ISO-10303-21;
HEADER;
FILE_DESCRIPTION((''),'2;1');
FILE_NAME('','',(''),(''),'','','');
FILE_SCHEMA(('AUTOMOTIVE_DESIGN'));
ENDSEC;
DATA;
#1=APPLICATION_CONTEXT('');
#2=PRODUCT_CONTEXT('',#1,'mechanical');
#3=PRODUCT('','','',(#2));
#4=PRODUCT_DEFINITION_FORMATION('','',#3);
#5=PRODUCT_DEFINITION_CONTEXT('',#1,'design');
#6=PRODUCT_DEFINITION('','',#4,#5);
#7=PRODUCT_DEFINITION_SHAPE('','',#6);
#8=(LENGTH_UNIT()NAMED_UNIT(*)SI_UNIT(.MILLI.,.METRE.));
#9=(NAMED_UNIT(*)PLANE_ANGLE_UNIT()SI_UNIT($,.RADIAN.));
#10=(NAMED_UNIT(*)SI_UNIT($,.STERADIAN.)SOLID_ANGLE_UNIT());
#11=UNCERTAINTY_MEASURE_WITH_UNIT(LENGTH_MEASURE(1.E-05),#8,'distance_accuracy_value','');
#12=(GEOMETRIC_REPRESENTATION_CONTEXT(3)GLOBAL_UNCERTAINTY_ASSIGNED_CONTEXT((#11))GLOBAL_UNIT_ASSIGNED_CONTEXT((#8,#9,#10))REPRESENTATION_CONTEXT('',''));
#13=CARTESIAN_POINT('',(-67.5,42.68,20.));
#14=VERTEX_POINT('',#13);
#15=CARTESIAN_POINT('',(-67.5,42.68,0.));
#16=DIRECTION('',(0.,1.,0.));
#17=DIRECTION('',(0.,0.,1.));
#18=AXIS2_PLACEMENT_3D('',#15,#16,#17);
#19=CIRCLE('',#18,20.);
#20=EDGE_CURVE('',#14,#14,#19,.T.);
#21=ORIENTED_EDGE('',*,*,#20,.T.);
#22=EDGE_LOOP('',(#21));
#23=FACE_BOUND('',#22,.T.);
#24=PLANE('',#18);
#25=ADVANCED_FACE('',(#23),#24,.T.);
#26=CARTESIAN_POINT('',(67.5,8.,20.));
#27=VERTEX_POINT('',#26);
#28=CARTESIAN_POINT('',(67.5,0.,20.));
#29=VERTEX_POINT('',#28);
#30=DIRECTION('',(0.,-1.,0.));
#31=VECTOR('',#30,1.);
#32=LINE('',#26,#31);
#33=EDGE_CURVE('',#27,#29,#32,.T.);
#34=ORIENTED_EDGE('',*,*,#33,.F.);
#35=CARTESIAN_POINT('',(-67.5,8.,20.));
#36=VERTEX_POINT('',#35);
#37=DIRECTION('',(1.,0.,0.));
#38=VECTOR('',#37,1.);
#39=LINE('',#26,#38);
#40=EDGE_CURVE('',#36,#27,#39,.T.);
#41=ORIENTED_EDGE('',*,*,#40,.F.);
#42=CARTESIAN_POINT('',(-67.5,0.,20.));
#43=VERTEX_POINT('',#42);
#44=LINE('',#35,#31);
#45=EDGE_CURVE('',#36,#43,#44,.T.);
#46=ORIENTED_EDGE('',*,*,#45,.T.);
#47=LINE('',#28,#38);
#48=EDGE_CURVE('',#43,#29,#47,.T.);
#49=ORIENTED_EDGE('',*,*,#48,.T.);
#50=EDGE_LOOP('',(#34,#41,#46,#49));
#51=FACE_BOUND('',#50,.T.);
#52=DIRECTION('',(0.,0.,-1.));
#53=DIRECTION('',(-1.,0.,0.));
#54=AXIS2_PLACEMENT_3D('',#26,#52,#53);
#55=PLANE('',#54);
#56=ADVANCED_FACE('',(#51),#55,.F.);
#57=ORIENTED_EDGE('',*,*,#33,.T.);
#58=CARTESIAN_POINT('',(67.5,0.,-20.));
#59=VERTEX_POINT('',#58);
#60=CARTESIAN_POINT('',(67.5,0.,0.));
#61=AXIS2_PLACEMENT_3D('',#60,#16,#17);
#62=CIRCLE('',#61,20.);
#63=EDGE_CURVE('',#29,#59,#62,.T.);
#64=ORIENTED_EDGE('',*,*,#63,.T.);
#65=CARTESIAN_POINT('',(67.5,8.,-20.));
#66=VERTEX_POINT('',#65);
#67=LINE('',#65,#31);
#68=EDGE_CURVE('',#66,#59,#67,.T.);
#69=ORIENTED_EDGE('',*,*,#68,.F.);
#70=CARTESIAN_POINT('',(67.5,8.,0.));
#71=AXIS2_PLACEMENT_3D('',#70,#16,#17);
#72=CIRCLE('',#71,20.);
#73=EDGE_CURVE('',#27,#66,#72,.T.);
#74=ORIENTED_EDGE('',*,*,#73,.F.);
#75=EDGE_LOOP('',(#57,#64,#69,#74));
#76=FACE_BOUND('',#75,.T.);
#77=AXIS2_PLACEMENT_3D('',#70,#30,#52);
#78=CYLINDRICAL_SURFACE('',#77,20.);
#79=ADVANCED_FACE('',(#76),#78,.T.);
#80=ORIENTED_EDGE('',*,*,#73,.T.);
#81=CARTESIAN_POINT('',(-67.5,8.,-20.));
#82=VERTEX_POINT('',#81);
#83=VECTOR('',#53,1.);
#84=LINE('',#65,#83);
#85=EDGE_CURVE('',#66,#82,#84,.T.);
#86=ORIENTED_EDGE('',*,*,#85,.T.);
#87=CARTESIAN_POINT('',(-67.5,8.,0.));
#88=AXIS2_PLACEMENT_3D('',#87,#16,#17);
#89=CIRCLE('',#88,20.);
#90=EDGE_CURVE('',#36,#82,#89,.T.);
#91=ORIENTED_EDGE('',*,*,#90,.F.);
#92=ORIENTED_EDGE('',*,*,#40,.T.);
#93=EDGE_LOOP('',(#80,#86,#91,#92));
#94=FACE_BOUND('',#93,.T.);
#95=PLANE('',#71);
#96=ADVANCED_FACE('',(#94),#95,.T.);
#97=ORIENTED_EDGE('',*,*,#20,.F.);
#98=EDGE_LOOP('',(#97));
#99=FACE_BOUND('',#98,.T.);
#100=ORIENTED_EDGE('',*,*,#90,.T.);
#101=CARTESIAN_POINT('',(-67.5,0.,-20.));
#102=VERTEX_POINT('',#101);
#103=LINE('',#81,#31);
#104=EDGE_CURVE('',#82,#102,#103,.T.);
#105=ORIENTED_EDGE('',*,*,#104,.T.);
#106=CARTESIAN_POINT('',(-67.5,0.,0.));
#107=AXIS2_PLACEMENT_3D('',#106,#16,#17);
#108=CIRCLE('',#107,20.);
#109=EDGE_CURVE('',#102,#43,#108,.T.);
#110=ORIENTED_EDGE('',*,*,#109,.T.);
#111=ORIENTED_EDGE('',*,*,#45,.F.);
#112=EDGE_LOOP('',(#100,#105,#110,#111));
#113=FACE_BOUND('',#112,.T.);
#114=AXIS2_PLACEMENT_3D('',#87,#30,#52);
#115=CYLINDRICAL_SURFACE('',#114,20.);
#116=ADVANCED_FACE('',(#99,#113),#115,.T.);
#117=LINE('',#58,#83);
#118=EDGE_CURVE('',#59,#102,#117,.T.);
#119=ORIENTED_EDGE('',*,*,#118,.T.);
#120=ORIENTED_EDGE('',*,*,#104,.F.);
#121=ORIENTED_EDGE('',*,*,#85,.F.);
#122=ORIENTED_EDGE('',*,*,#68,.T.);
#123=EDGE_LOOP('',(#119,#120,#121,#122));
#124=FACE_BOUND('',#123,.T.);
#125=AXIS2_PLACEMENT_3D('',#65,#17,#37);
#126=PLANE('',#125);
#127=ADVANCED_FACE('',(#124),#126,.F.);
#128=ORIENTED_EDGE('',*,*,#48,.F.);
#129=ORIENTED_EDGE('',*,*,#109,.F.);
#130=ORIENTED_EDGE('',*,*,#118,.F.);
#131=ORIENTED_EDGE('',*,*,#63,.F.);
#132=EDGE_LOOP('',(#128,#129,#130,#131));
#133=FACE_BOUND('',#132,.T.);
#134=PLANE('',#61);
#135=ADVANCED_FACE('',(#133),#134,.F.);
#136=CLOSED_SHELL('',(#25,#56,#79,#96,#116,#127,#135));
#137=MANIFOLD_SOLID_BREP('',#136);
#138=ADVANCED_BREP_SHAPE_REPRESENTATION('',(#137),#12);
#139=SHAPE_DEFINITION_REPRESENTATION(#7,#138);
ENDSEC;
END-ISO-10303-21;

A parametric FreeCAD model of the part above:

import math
import FreeCAD as App
import Part
import Sketcher
from FreeCAD import Vector
Q = App.Units.Quantity

doc = App.newDocument("Part")
body = doc.addObject("PartDesign::Body", "Body")

# Sketch on XZ plane
sketch1 = body.newObject("Sketcher::SketchObject", "Sketch")
sketch1.AttachmentSupport = (doc.getObject("XZ_Plane"), [""])
sketch1.MapMode = "FlatFace"
sketch1.addGeometry(Part.LineSegment(Vector(-68, 20, 0), Vector(68, 20, 0)), False)
sketch1.addGeometry(Part.ArcOfCircle(Part.Circle(Vector(68, 0, 0), Vector(0, 0, 1), 20), math.radians(-90), math.radians(90)), False)
sketch1.addGeometry(Part.LineSegment(Vector(68, -20, 0), Vector(-68, -20, 0)), False)
sketch1.addGeometry(Part.ArcOfCircle(Part.Circle(Vector(-68, 0, 0), Vector(0, 0, 1), 20), math.radians(90), math.radians(270)), False)
sketch1.addConstraint(Sketcher.Constraint("Tangent", 0, 2, 1, 2))
sketch1.addConstraint(Sketcher.Constraint("Tangent", 1, 1, 2, 1))
sketch1.addConstraint(Sketcher.Constraint("Tangent", 2, 2, 3, 2))
sketch1.addConstraint(Sketcher.Constraint("Tangent", 3, 1, 0, 1))
sketch1.addConstraint(Sketcher.Constraint("Horizontal", 0))
sketch1.addConstraint(Sketcher.Constraint("Horizontal", 2))
sketch1.addConstraint(Sketcher.Constraint("Symmetric", 1, 3, 3, 3, -1, 1))
sketch1.addConstraint(Sketcher.Constraint("Radius", 1, Q("20 mm")))
sketch1.addConstraint(Sketcher.Constraint("DistanceX", 0, 1, 0, 2, Q("135 mm")))
pad1 = body.newObject("PartDesign::Pad", "Pad")
pad1.Profile = sketch1
pad1.Length = 8
pad1.Reversed = True

# Sketch on XZ plane
sketch2 = body.newObject("Sketcher::SketchObject", "Sketch001")
sketch2.AttachmentSupport = (doc.getObject("XZ_Plane"), [""])
sketch2.MapMode = "FlatFace"
sketch2.AttachmentOffset = App.Placement(Vector(0, 0, -8), App.Rotation())
sketch2.addGeometry(Part.Circle(Vector(-68, 0, 0), Vector(0, 0, 1), 20), False)
sketch2.addConstraint(Sketcher.Constraint("PointOnObject", 0, 3, -1))
sketch2.addConstraint(Sketcher.Constraint("Diameter", 0, Q("40 mm")))
sketch2.addConstraint(Sketcher.Constraint("DistanceX", 0, 3, -1, 1, Q("67.5 mm")))
pad2 = body.newObject("PartDesign::Pad", "Pad001")
pad2.Profile = sketch2
pad2.Length = 34.68
pad2.Reversed = True

doc.recompute()
